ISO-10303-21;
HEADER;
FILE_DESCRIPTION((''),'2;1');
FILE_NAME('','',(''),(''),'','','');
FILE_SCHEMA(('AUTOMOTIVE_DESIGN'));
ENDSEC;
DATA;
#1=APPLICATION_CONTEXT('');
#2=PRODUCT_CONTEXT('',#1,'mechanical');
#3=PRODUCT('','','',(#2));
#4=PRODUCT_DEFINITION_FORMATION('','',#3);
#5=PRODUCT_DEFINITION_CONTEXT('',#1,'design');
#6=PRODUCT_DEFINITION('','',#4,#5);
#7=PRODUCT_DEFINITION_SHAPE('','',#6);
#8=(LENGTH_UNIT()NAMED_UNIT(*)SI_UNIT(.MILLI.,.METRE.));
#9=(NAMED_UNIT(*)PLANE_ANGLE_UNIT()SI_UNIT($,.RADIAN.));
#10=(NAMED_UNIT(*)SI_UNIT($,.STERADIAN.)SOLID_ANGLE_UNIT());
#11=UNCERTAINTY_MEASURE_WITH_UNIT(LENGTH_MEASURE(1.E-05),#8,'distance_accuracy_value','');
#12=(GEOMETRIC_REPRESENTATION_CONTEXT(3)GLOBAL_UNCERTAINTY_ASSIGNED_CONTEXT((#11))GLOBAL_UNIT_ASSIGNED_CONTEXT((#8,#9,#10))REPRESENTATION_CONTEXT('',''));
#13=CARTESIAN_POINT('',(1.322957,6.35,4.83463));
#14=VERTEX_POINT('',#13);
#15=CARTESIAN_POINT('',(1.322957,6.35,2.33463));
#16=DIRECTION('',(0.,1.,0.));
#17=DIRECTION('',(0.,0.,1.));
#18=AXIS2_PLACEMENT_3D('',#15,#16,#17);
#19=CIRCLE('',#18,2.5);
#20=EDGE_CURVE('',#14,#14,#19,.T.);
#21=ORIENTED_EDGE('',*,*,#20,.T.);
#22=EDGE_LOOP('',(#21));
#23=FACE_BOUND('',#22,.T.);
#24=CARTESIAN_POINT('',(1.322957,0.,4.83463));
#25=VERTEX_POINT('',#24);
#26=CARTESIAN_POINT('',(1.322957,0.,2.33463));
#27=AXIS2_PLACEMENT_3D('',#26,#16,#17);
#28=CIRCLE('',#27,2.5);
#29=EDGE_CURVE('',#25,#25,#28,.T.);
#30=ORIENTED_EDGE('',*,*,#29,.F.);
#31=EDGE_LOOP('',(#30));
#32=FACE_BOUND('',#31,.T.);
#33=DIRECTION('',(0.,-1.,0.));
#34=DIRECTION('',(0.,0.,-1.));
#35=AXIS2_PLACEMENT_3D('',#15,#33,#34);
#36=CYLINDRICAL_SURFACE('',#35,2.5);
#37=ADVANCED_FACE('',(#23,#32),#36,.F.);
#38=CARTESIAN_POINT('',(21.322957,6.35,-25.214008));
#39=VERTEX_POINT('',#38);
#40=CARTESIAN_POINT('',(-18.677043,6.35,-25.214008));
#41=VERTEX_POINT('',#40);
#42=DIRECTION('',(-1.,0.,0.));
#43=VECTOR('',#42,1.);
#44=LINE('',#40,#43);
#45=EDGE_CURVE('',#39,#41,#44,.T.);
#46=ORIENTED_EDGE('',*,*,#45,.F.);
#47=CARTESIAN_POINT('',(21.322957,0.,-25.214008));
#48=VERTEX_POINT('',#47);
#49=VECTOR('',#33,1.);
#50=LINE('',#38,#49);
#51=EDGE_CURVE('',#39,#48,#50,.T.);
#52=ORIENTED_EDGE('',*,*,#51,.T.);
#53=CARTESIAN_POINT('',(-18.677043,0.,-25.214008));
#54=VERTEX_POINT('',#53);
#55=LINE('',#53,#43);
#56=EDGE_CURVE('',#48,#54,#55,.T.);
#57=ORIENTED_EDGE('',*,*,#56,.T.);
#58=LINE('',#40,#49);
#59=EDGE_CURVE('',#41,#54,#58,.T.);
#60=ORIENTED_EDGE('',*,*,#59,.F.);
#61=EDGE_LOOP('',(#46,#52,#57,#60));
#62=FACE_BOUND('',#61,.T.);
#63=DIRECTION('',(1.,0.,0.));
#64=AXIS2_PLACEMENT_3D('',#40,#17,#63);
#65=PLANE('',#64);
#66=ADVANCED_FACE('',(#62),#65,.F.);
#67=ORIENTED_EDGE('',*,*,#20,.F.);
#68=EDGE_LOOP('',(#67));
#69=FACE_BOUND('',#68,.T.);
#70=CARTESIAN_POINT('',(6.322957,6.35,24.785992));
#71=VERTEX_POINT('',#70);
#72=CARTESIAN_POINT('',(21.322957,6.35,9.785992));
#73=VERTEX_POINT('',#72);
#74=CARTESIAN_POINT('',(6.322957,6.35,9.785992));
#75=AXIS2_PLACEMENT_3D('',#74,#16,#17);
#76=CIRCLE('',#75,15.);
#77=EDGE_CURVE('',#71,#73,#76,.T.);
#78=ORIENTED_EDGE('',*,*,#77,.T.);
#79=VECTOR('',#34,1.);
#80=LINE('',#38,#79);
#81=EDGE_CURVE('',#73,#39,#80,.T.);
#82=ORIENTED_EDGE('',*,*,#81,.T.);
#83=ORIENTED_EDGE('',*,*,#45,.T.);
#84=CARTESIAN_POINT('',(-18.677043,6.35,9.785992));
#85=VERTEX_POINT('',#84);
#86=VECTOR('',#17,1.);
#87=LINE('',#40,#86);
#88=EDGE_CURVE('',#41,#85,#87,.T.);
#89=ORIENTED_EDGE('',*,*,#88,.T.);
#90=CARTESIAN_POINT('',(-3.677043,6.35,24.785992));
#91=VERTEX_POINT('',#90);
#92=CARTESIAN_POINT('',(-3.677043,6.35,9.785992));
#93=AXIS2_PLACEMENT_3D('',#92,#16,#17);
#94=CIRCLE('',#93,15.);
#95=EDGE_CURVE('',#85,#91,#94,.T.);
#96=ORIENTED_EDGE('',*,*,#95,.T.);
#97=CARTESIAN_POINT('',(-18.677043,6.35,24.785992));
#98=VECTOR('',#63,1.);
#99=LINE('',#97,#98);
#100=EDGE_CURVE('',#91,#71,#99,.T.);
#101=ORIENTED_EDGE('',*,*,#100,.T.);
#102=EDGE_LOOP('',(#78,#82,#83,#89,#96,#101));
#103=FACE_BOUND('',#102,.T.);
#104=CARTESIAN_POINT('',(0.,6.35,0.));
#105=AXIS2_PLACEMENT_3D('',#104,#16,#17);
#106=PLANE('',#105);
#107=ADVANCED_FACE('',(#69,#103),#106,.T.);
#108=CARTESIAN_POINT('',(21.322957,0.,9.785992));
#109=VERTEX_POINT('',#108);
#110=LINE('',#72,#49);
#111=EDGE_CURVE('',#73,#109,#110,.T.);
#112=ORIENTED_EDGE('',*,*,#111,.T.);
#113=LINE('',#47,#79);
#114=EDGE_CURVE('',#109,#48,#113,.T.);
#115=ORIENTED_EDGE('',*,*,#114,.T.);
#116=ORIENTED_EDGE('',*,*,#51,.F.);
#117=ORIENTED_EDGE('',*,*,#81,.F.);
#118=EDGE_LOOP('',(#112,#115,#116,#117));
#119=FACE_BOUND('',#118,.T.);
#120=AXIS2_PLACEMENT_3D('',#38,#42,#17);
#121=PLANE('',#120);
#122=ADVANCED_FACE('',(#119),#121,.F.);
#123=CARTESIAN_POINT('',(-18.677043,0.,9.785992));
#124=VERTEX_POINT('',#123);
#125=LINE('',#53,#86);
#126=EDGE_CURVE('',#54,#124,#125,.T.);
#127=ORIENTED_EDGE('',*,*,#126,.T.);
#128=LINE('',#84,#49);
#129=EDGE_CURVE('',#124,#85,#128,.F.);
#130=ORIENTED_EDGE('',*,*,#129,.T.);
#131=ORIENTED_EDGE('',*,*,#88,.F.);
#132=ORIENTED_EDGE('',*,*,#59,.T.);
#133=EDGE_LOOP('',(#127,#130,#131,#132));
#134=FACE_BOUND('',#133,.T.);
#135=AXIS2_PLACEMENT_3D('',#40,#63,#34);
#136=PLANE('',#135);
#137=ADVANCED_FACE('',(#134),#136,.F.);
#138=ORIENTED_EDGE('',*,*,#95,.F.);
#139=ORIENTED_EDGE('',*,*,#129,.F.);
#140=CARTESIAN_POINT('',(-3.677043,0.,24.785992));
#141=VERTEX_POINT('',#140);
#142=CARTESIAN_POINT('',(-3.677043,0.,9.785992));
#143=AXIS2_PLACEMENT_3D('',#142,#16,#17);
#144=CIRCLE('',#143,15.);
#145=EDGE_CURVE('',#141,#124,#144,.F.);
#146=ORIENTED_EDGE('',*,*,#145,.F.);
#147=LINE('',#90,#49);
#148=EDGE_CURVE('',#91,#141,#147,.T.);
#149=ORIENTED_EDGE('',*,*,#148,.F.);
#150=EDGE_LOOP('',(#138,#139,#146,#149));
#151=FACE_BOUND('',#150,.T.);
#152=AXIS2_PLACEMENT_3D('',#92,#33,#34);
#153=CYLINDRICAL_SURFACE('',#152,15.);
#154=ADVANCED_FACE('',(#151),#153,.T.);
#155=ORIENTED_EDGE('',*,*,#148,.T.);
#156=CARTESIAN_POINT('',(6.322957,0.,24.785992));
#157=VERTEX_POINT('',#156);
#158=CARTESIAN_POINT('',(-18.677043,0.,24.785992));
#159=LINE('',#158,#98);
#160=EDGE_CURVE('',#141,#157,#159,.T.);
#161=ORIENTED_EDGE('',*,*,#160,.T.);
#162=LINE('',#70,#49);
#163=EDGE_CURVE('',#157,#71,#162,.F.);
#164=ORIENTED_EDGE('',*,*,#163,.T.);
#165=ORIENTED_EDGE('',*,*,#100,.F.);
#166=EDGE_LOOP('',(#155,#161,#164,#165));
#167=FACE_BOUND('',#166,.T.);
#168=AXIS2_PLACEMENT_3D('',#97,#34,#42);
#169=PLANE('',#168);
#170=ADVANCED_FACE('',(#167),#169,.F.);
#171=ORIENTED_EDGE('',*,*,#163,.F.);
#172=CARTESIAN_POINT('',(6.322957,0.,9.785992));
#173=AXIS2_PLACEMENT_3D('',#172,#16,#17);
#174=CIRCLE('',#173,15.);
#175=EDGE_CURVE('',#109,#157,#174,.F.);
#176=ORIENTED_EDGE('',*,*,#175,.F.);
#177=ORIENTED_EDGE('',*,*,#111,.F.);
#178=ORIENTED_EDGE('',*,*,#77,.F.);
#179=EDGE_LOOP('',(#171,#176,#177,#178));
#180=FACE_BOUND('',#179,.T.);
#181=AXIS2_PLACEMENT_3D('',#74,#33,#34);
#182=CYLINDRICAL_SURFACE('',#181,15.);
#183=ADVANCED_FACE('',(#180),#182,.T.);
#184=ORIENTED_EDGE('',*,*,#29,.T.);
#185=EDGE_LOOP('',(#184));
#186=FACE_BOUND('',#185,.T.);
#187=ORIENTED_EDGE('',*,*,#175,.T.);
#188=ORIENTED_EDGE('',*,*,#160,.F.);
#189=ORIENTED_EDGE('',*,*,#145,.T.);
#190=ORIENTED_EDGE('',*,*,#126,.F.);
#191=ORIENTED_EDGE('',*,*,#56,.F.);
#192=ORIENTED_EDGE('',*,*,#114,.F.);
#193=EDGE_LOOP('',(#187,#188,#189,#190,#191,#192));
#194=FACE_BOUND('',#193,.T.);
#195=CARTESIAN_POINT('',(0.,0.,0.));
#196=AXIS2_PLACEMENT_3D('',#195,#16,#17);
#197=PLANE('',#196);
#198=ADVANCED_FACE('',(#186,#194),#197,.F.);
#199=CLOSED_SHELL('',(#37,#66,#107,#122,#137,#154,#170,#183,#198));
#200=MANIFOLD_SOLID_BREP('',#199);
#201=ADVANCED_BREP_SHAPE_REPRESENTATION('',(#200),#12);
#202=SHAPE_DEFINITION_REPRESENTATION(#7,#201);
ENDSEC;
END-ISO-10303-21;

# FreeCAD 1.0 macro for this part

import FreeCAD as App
import Part
import Sketcher

V = App.Vector


def edges_at(feature, points):
    """Names of the edges that pass closest to the given points."""
    edges = feature.Shape.Edges
    near = lambda p: min(range(len(edges)), key=lambda i: edges[i].distToShape(Part.Vertex(*p))[0])
    return sorted({f"Edge{near(p) + 1}" for p in points})


def add_polygon(sketch, points):
    """Adds a closed chain of lines whose ends are joined by coincident constraints."""
    first, n = sketch.GeometryCount, len(points)
    for a, b in zip(points, points[1:] + points[:1]):
        sketch.addGeometry(Part.LineSegment(App.Vector(*a, 0), App.Vector(*b, 0)), False)
    for i in range(n):
        sketch.addConstraint(Sketcher.Constraint("Coincident", first + i, 2, first + (i + 1) % n, 1))

doc = App.newDocument("Part")
body = doc.addObject("PartDesign::Body", "Body")

# Sketch on XZ plane
sketch1 = body.newObject("Sketcher::SketchObject", "Sketch")
sketch1.AttachmentSupport = (doc.getObject("XZ_Plane"), [""])
sketch1.MapMode = "FlatFace"
add_polygon(sketch1, [(-18.677043, -25.214008), (-18.677043, 24.785992), (21.322957, 24.785992), (21.322957, -25.214008)])  # lines 0-3
sketch1.addGeometry(Part.Circle(V(1.322957, 2.33463, 0), V(0, 0, 1), 2.5), False)  # 4
sketch1.addConstraint([
    Sketcher.Constraint("Vertical", 0),
    Sketcher.Constraint("Horizontal", 1),
    Sketcher.Constraint("Vertical", 2),
    Sketcher.Constraint("Horizontal", 3),
    Sketcher.Constraint("Diameter", 4, 5.0),
    Sketcher.Constraint("DistanceX", 1, 1, 1, 2, 40.0),
    Sketcher.Constraint("DistanceY", 0, 1, 0, 2, 50.0),
    Sketcher.Constraint("DistanceX", 0, 2, 4, 3, 20.0),
    Sketcher.Constraint("DistanceY", -1, 1, 4, 3, 2.33463),
    Sketcher.Constraint("DistanceY", 4, 3, 0, 2, 22.451362),
    Sketcher.Constraint("DistanceX", -1, 1, 4, 3, 1.322957),
])
pad1 = body.newObject("PartDesign::Pad", "Pad")
pad1.Profile = sketch1
pad1.Length = 6.35
pad1.Reversed = True
doc.recompute()

fillet = body.newObject("PartDesign::Fillet", "Fillet")
fillet.Base = (pad1, edges_at(pad1, [(21.323, 3.175, 24.786), (-18.677, 3.175, 24.786)]))
fillet.Radius = 15

doc.recompute()
